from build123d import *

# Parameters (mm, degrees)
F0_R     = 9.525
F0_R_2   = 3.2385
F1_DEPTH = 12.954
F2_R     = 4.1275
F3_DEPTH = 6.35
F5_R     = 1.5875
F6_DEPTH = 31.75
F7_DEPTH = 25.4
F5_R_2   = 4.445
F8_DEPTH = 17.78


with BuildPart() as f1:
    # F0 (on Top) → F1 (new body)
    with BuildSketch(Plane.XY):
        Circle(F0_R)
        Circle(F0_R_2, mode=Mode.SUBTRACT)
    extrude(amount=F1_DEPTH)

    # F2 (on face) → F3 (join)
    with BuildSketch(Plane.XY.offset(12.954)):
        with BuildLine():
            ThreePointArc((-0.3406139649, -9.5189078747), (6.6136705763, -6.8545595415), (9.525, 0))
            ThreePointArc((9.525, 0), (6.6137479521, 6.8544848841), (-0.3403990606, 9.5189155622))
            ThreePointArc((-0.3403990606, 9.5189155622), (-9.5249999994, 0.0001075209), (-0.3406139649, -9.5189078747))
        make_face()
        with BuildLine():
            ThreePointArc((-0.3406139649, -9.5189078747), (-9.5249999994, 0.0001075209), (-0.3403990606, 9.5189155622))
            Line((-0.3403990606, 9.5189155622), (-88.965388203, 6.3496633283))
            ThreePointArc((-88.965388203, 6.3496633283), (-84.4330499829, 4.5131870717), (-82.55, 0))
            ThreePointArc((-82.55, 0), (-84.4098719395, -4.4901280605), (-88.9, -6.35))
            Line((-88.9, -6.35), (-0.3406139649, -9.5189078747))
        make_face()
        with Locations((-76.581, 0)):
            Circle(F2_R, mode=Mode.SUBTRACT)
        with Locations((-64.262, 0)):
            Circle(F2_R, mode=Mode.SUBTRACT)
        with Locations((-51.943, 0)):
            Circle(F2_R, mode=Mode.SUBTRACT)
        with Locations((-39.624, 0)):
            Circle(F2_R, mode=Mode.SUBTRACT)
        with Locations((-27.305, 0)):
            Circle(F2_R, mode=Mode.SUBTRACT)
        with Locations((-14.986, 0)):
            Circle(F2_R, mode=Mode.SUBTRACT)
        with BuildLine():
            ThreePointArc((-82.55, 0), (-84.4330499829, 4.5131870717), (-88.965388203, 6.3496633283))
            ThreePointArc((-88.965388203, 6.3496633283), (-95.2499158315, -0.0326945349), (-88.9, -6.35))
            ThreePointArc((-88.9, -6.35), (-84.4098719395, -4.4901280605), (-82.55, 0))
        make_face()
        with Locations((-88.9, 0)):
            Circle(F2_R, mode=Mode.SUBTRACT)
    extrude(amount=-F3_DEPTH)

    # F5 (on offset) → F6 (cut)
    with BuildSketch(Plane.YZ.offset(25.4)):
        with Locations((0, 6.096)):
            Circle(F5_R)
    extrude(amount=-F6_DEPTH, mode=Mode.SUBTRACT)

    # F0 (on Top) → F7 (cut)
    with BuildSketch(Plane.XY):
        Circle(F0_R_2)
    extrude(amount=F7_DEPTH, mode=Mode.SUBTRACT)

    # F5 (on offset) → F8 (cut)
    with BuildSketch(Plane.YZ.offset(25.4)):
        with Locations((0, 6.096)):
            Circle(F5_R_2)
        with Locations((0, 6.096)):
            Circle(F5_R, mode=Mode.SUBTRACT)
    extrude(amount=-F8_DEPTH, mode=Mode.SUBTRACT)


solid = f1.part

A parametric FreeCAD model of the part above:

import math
import FreeCAD as App
import Part
import Sketcher
Q = App.Units.Quantity

doc = App.newDocument("Part")
body = doc.addObject("PartDesign::Body", "Body")

sketch1 = body.newObject("Sketcher::SketchObject", "Sketch")
sketch1.AttachmentSupport = (doc.getObject("XY_Plane"), [""])
sketch1.MapMode = "FlatFace"
sketch1.addGeometry([
    Part.Circle(App.Vector(0, 0, 0), App.Vector(0, 0, 1), 9.525),
    Part.Circle(App.Vector(0, 0, 0), App.Vector(0, 0, 1), 3.2385),
], False)
sketch1.addConstraint([
    Sketcher.Constraint("Coincident", 0, 3, -1, 1),
    Sketcher.Constraint("Coincident", 1, 3, -1, 1),
    Sketcher.Constraint("Diameter", 0, Q("0.75 in")),
    Sketcher.Constraint("Diameter", 1, Q("0.255 in")),
])
pad1 = body.newObject("PartDesign::Pad", "Pad")
pad1.Profile = sketch1
pad1.Length = Q("0.51 in")

sketch2 = body.newObject("Sketcher::SketchObject", "Sketch001")
sketch2.AttachmentSupport = (doc.getObject("XY_Plane"), [""])
sketch2.MapMode = "FlatFace"
sketch2.AttachmentOffset = App.Placement(App.Vector(0, 0, 0.51 * 25.4), App.Rotation())
sketch2.addGeometry([
    Part.ArcOfCircle(Part.Circle(App.Vector(0, 0, 0), App.Vector(0, 0, 1), 9.525), math.radians(-92.049334), math.radians(0)),
    Part.ArcOfCircle(Part.Circle(App.Vector(0, 0, 0), App.Vector(0, 0, 1), 9.525), math.radians(0), math.radians(92.04804)),
    Part.LineSegment(App.Vector(-0.340399, 9.518916, 0), App.Vector(-88.965388, 6.349663, 0)),
    Part.ArcOfCircle(Part.Circle(App.Vector(-88.9, 0, 0), App.Vector(0, 0, 1), 6.35), math.radians(90.590005), math.radians(270)),
    Part.LineSegment(App.Vector(-88.9, -6.35, 0), App.Vector(-0.340614, -9.518908, 0)),
    Part.Circle(App.Vector(-88.9, 0, 0), App.Vector(0, 0, 1), 4.1275),
    Part.Circle(App.Vector(-76.581, 0, 0), App.Vector(0, 0, 1), 4.1275),
    Part.Circle(App.Vector(-64.262, 0, 0), App.Vector(0, 0, 1), 4.1275),
    Part.Circle(App.Vector(-51.943, 0, 0), App.Vector(0, 0, 1), 4.1275),
    Part.Circle(App.Vector(-39.624, 0, 0), App.Vector(0, 0, 1), 4.1275),
    Part.Circle(App.Vector(-27.305, 0, 0), App.Vector(0, 0, 1), 4.1275),
    Part.Circle(App.Vector(-14.986, 0, 0), App.Vector(0, 0, 1), 4.1275),
], False)
sketch2.addConstraint([
    Sketcher.Constraint("Tangent", 0, 2, 1, 1),
    Sketcher.Constraint("Tangent", 1, 2, 2, 1),
    Sketcher.Constraint("Coincident", 2, 2, 3, 1),
    Sketcher.Constraint("Coincident", 3, 2, 4, 1),
    Sketcher.Constraint("Tangent", 4, 2, 0, 1),
    Sketcher.Constraint("Coincident", 0, 3, -1, 1),
    Sketcher.Constraint("Coincident", 5, 3, 3, 3),
    Sketcher.Constraint("Equal", 0, 1),
    Sketcher.Constraint("Equal", 5, 6),
    Sketcher.Constraint("Equal", 6, 7),
    Sketcher.Constraint("Equal", 7, 8),
    Sketcher.Constraint("Equal", 8, 9),
    Sketcher.Constraint("Equal", 9, 10),
    Sketcher.Constraint("Equal", 10, 11),
    Sketcher.Constraint("PointOnObject", 3, 3, -1),
    Sketcher.Constraint("PointOnObject", 6, 3, -1),
    Sketcher.Constraint("PointOnObject", 7, 3, -1),
    Sketcher.Constraint("PointOnObject", 8, 3, -1),
    Sketcher.Constraint("PointOnObject", 9, 3, -1),
    Sketcher.Constraint("PointOnObject", 10, 3, -1),
    Sketcher.Constraint("PointOnObject", 11, 3, -1),
    Sketcher.Constraint("PointOnObject", 0, 2, -1),
    Sketcher.Constraint("Vertical", 5, 3, 3, 2),
    Sketcher.Constraint("Radius", 3, Q("0.25 in")),
    Sketcher.Constraint("Diameter", 5, Q("0.325 in")),
    Sketcher.Constraint("Radius", 0, Q("0.375 in")),
    Sketcher.Constraint("DistanceX", 3, 3, -1, 1, Q("3.5 in")),
    Sketcher.Constraint("DistanceX", 7, 3, -1, 1, Q("2.53 in")),
    Sketcher.Constraint("DistanceX", 9, 3, -1, 1, Q("1.56 in")),
    Sketcher.Constraint("DistanceX", 11, 3, -1, 1, Q("0.59 in")),
    Sketcher.Constraint("DistanceX", 6, 3, 8, 3, Q("0.97 in")),
    Sketcher.Constraint("DistanceX", 8, 3, 10, 3, Q("0.97 in")),
    Sketcher.Constraint("DistanceX", 10, 3, 0, 2, Q("1.45 in")),
    Sketcher.Constraint("DistanceX", 2, 2, -1, 1, Q("88.965388 mm")),
])
pad2 = body.newObject("PartDesign::Pad", "Pad001")
pad2.Profile = sketch2
pad2.Length = Q("0.25 in")
pad2.Reversed = True

sketch3 = body.newObject("Sketcher::SketchObject", "Sketch002")
sketch3.AttachmentSupport = (doc.getObject("YZ_Plane"), [""])
sketch3.MapMode = "FlatFace"
sketch3.AttachmentOffset = App.Placement(App.Vector(0, 0, 1 * 25.4), App.Rotation())
sketch3.addGeometry(Part.Circle(App.Vector(0, 6.096, 0), App.Vector(0, 0, 1), 1.5875), False)
sketch3.addConstraint([
    Sketcher.Constraint("PointOnObject", 0, 3, -2),
    Sketcher.Constraint("Diameter", 0, Q("0.125 in")),
    Sketcher.Constraint("DistanceY", -1, 1, 0, 3, Q("0.24 in")),
])
pocket1 = body.newObject("PartDesign::Pocket", "Pocket")
pocket1.Profile = sketch3
pocket1.Length = Q("1.25 in")

sketch4 = body.newObject("Sketcher::SketchObject", "Sketch003")
sketch4.AttachmentSupport = (doc.getObject("XY_Plane"), [""])
sketch4.MapMode = "FlatFace"
sketch4.addGeometry(Part.Circle(App.Vector(0, 0, 0), App.Vector(0, 0, 1), 3.2385), False)
sketch4.addConstraint([
    Sketcher.Constraint("Coincident", 0, 3, -1, 1),
    Sketcher.Constraint("Diameter", 0, Q("0.255 in")),
])
pocket2 = body.newObject("PartDesign::Pocket", "Pocket001")
pocket2.Profile = sketch4
pocket2.Length = Q("1 in")
pocket2.Reversed = True

sketch5 = body.newObject("Sketcher::SketchObject", "Sketch004")
sketch5.AttachmentSupport = (doc.getObject("YZ_Plane"), [""])
sketch5.MapMode = "FlatFace"
sketch5.AttachmentOffset = App.Placement(App.Vector(0, 0, 1 * 25.4), App.Rotation())
sketch5.addGeometry([
    Part.Circle(App.Vector(0, 6.096, 0), App.Vector(0, 0, 1), 4.445),
    Part.Circle(App.Vector(0, 6.096, 0), App.Vector(0, 0, 1), 1.5875),
], False)
sketch5.addConstraint([
    Sketcher.Constraint("Coincident", 1, 3, 0, 3),
    Sketcher.Constraint("PointOnObject", 0, 3, -2),
    Sketcher.Constraint("Diameter", 0, Q("0.35 in")),
    Sketcher.Constraint("Diameter", 1, Q("0.125 in")),
    Sketcher.Constraint("DistanceY", -1, 1, 0, 3, Q("0.24 in")),
])
pocket3 = body.newObject("PartDesign::Pocket", "Pocket002")
pocket3.Profile = sketch5
pocket3.Length = Q("0.7 in")

doc.recompute()
